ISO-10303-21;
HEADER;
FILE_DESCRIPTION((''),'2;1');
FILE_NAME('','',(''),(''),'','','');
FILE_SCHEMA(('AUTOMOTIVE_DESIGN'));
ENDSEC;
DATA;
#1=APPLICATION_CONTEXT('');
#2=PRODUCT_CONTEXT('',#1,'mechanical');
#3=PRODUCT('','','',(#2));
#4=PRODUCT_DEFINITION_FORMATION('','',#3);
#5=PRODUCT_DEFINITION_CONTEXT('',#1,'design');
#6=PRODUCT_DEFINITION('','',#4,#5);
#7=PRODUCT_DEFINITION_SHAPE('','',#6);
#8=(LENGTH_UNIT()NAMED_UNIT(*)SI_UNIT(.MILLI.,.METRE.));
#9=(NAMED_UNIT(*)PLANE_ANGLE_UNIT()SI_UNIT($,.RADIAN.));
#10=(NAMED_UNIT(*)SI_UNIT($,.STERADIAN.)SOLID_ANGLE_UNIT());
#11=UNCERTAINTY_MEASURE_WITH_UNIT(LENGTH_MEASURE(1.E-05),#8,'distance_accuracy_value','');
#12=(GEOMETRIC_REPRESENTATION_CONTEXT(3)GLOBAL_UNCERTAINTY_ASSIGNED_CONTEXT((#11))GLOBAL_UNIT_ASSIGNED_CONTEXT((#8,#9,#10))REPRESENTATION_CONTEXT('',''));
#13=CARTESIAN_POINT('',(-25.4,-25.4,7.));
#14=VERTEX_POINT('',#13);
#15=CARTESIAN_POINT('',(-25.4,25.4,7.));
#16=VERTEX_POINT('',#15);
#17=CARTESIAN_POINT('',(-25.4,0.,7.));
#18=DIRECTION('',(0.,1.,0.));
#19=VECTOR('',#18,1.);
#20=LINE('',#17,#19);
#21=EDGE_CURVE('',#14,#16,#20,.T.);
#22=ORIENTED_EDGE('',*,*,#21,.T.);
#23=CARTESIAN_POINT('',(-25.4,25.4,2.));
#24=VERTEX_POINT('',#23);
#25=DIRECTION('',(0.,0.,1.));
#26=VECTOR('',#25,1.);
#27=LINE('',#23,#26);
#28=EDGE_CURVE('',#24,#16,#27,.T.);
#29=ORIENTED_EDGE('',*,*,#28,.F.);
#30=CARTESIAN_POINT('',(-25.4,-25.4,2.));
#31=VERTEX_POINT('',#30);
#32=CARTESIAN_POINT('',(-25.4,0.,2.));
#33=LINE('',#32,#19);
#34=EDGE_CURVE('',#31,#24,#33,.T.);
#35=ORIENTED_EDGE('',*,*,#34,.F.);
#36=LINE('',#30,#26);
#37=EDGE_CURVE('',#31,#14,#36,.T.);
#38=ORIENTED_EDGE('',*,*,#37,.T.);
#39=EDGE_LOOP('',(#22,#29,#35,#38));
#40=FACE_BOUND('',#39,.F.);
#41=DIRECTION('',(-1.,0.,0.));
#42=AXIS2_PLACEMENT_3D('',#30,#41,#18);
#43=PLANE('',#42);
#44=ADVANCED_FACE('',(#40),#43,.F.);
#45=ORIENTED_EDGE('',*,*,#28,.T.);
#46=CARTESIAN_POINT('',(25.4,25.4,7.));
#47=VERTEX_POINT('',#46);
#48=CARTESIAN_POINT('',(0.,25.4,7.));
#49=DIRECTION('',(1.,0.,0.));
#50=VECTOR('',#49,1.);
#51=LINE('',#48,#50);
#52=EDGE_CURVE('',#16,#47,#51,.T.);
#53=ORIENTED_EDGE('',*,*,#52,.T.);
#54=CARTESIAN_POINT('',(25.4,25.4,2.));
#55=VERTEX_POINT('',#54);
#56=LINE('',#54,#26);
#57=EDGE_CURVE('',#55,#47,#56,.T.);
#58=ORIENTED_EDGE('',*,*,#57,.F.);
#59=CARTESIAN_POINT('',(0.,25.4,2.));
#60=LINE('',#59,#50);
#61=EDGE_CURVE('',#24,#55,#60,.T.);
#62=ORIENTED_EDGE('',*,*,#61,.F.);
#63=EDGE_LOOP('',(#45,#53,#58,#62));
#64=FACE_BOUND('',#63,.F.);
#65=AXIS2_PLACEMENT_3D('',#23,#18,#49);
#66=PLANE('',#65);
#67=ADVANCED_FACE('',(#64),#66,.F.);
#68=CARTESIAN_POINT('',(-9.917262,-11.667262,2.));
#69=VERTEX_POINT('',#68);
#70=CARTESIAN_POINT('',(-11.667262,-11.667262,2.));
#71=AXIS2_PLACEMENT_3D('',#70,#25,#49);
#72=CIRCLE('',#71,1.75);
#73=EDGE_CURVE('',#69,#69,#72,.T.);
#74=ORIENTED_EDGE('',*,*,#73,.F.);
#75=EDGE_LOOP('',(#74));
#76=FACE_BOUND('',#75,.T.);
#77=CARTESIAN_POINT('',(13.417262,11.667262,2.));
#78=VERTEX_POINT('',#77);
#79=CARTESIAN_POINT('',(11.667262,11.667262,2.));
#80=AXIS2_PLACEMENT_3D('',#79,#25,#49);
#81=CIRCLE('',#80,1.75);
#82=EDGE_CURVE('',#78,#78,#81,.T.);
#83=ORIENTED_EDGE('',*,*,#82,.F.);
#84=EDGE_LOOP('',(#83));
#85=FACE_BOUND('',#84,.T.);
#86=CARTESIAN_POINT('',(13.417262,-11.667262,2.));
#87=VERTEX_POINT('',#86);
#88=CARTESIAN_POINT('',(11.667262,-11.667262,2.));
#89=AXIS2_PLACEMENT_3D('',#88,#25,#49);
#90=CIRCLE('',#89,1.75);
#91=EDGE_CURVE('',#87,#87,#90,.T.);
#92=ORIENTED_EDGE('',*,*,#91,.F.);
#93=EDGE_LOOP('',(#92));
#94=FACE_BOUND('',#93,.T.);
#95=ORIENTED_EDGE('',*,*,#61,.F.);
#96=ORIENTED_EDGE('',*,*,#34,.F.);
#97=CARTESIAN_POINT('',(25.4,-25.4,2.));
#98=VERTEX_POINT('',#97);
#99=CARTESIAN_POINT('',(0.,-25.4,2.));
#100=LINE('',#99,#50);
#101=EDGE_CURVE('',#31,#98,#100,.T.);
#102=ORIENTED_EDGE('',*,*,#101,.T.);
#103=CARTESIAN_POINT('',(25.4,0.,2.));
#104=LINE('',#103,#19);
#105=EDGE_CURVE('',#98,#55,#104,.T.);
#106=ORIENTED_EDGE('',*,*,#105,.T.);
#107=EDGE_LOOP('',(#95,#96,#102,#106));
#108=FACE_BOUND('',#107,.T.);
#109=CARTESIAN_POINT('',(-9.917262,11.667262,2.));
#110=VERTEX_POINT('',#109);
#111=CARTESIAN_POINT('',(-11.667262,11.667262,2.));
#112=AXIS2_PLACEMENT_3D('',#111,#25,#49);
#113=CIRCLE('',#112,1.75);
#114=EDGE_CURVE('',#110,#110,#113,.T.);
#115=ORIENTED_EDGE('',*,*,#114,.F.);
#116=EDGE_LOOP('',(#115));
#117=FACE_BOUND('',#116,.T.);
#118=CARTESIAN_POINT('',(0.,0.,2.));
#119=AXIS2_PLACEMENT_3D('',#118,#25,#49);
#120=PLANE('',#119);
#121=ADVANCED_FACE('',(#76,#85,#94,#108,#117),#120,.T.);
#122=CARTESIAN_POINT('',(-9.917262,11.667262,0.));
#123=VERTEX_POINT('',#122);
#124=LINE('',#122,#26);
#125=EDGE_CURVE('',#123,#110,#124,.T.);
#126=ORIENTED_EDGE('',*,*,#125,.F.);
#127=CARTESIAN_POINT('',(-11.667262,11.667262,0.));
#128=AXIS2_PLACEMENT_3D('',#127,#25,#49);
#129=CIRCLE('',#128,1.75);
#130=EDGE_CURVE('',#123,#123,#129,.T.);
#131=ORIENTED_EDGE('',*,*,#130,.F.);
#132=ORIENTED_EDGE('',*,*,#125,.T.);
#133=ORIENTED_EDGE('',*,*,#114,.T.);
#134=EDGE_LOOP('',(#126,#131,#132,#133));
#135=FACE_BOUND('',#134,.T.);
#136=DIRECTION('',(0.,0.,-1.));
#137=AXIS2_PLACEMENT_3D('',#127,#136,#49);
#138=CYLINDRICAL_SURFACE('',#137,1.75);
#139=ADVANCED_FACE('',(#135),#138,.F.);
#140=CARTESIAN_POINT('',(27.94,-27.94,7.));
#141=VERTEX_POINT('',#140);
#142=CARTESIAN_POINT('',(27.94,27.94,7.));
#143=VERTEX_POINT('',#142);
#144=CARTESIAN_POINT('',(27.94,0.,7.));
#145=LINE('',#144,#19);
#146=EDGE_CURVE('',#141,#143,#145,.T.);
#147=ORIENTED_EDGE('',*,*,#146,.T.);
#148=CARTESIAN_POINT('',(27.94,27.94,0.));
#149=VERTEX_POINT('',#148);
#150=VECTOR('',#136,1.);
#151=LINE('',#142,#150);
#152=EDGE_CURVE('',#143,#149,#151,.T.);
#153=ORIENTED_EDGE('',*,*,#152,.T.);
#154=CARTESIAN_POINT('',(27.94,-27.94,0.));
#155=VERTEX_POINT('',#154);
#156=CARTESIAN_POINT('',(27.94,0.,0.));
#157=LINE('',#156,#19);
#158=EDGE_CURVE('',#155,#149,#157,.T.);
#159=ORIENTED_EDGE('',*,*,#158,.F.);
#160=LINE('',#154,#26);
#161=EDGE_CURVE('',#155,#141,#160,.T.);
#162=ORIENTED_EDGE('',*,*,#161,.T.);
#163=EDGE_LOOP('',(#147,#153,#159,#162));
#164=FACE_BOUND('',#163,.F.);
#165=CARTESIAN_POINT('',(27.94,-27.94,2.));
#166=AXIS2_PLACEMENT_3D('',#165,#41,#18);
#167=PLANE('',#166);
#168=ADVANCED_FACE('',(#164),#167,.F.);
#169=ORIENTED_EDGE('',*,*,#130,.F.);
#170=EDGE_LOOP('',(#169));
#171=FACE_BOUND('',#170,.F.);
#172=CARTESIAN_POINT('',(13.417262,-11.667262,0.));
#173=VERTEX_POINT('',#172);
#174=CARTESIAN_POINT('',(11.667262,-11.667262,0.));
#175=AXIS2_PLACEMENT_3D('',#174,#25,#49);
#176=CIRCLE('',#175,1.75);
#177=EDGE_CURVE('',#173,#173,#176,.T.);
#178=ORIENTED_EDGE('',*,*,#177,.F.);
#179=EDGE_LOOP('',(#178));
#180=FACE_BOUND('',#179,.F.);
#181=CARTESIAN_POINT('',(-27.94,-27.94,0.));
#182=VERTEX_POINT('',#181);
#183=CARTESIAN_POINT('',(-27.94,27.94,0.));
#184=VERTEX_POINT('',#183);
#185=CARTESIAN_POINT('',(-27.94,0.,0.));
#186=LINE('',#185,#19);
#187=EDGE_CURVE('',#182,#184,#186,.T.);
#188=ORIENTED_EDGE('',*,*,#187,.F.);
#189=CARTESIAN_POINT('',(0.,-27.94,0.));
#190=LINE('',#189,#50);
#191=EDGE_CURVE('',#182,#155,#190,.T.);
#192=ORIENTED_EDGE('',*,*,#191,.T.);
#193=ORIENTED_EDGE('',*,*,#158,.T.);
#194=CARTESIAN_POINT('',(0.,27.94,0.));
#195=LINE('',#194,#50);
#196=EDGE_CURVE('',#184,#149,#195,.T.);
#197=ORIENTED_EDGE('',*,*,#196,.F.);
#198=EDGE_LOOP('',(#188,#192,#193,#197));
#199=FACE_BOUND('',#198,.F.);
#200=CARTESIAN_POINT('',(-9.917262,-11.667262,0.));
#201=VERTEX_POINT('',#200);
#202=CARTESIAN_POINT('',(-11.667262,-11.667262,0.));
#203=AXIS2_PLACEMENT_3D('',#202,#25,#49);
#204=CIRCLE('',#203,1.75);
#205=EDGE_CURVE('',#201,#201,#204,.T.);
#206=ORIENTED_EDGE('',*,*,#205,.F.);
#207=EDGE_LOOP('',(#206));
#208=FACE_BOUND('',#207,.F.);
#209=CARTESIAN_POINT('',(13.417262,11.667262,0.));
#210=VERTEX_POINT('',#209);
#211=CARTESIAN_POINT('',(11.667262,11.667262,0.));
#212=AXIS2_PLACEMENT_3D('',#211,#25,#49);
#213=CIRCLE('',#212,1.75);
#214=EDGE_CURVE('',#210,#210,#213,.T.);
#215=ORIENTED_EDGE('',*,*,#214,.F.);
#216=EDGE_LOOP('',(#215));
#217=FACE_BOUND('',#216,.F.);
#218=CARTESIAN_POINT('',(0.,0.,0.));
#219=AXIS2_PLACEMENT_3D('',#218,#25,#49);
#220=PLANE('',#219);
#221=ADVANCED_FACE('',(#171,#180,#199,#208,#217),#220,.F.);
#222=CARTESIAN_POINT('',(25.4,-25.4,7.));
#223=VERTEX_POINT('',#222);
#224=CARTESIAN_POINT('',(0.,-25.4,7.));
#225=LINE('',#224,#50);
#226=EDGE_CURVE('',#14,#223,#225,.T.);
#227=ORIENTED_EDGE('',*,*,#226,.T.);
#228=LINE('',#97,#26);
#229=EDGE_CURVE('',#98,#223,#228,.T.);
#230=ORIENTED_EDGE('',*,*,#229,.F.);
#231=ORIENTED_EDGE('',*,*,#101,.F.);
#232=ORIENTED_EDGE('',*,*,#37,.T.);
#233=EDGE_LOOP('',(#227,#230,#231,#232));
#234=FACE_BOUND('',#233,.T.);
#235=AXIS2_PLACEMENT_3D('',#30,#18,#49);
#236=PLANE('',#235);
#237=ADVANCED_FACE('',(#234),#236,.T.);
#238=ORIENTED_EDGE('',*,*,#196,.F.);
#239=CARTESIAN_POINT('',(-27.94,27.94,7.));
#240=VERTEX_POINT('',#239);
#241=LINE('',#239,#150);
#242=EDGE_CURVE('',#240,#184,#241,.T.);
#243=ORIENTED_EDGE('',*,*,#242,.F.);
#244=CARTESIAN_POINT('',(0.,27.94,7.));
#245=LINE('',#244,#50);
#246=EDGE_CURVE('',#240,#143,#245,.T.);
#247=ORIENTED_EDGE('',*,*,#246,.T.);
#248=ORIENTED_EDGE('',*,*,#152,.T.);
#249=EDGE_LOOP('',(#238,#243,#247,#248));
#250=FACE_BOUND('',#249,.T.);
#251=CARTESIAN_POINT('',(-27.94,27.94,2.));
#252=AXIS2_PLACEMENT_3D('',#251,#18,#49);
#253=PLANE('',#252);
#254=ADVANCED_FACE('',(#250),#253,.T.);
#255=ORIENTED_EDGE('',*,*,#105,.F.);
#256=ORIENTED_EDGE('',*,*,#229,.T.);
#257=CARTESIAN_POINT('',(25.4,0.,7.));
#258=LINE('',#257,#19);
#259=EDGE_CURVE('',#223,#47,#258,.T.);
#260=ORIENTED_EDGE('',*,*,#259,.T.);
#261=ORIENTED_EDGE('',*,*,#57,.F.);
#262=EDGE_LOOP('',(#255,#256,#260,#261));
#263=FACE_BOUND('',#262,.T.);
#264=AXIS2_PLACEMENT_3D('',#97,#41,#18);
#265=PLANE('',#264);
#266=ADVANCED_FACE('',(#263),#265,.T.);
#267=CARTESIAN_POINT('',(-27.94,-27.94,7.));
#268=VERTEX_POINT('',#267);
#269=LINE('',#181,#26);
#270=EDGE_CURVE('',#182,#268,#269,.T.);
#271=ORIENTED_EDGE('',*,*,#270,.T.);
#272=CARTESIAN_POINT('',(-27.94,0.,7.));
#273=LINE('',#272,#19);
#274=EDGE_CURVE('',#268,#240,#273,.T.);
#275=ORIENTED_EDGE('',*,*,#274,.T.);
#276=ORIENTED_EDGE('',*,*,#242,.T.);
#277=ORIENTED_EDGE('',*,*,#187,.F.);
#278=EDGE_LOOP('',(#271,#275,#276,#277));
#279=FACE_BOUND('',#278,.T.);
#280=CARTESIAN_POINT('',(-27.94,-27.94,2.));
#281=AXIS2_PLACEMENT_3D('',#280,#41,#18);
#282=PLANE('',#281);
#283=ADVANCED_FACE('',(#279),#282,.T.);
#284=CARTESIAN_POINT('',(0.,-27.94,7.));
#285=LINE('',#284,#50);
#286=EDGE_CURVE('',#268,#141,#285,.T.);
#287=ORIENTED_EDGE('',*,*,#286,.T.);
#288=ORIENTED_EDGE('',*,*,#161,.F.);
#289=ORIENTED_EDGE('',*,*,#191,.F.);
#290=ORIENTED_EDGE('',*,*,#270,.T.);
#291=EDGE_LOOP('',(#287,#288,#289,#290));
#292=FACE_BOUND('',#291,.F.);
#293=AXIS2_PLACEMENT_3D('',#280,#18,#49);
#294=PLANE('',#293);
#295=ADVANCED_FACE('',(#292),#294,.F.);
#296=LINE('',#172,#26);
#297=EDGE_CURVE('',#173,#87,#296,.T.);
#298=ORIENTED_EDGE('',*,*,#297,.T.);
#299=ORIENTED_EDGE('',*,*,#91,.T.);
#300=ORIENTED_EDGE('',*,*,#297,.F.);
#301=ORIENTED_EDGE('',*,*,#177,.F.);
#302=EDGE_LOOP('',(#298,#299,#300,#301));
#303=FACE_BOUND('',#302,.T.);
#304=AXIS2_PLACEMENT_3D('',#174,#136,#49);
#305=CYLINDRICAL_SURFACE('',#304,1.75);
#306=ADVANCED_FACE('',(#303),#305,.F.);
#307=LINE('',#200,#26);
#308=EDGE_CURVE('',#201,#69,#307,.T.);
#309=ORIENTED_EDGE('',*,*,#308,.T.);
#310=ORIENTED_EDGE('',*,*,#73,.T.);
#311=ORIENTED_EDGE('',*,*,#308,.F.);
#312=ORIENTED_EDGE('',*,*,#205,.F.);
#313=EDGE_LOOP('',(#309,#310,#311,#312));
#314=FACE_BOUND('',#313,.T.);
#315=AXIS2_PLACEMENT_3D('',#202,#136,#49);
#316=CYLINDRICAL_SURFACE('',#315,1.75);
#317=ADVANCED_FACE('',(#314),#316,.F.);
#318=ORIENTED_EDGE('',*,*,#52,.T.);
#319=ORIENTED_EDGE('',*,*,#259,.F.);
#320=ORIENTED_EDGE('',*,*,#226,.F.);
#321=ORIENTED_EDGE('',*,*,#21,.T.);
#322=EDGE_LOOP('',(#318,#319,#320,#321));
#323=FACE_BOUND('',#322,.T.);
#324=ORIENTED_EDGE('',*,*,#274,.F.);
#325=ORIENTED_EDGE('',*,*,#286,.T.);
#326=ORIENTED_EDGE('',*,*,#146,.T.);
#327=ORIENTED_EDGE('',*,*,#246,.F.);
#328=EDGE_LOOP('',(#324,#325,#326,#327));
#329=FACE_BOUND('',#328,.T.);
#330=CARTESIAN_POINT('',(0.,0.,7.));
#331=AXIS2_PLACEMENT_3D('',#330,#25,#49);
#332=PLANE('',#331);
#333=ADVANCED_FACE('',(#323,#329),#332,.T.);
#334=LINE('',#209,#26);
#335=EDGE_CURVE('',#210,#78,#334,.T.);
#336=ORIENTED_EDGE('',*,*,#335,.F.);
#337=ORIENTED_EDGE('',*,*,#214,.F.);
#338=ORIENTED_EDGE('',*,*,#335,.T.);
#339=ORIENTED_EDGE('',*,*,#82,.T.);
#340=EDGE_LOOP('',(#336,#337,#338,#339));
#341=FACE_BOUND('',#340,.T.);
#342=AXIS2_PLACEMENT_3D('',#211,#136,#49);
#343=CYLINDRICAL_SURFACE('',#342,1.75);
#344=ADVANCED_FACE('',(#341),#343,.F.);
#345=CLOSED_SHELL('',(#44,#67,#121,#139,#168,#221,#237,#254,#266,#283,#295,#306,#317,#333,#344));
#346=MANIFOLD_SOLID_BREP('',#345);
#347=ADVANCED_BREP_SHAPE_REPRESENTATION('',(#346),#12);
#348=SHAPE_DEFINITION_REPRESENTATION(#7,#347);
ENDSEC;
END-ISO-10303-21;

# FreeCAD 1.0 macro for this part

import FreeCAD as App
import Part
import Sketcher
Q = App.Units.Quantity

doc = App.newDocument("Part")
body = doc.addObject("PartDesign::Body", "Body")

sketch1 = body.newObject("Sketcher::SketchObject", "Sketch")
sketch1.AttachmentSupport = (doc.getObject("XY_Plane"), [""])
sketch1.MapMode = "FlatFace"
sketch1.addGeometry([
    Part.LineSegment(App.Vector(-27.9, 27.9, 0), App.Vector(-27.9, -27.9, 0)),
    Part.LineSegment(App.Vector(-27.9, -27.9, 0), App.Vector(27.9, -27.9, 0)),
    Part.LineSegment(App.Vector(27.9, -27.9, 0), App.Vector(27.9, 27.9, 0)),
    Part.LineSegment(App.Vector(27.9, 27.9, 0), App.Vector(-27.9, 27.9, 0)),
    Part.Circle(App.Vector(-11.7, -11.7, 0), App.Vector(0, 0, 1), 1.8),
    Part.Circle(App.Vector(11.7, -11.7, 0), App.Vector(0, 0, 1), 1.8),
    Part.Circle(App.Vector(-11.7, 11.7, 0), App.Vector(0, 0, 1), 1.8),
    Part.Circle(App.Vector(11.7, 11.7, 0), App.Vector(0, 0, 1), 1.8),
], False)
sketch1.addConstraint([
    Sketcher.Constraint("Coincident", 0, 2, 1, 1),
    Sketcher.Constraint("Coincident", 1, 2, 2, 1),
    Sketcher.Constraint("Coincident", 2, 2, 3, 1),
    Sketcher.Constraint("Coincident", 3, 2, 0, 1),
    Sketcher.Constraint("Vertical", 0),
    Sketcher.Constraint("Horizontal", 1),
    Sketcher.Constraint("Vertical", 2),
    Sketcher.Constraint("Horizontal", 3),
    Sketcher.Constraint("Equal", 4, 5),
    Sketcher.Constraint("Equal", 5, 6),
    Sketcher.Constraint("Equal", 6, 7),
    Sketcher.Constraint("Symmetric", 5, 3, 6, 3, -1, 1),
    Sketcher.Constraint("Symmetric", 4, 3, 7, 3, -1, 1),
    Sketcher.Constraint("Symmetric", 0, 2, 2, 2, -1, 1),
    Sketcher.Constraint("Symmetric", 4, 3, 5, 3, -2),
    Sketcher.Constraint("Equal", 3, 0),
    Sketcher.Constraint("Diameter", 4, Q("3.5 mm")),
    Sketcher.Constraint("DistanceX", 1, 1, 1, 2, Q("55.88 mm")),
    Sketcher.Constraint("DistanceX", 4, 3, -1, 1, Q("11.667262 mm")),
    Sketcher.Constraint("DistanceY", 4, 3, -1, 1, Q("11.667262 mm")),
])
pad1 = body.newObject("PartDesign::Pad", "Pad")
pad1.Profile = sketch1
pad1.Length = 2

sketch2 = body.newObject("Sketcher::SketchObject", "Sketch001")
sketch2.AttachmentSupport = (doc.getObject("XY_Plane"), [""])
sketch2.MapMode = "FlatFace"
sketch2.AttachmentOffset = App.Placement(App.Vector(0, 0, 2), App.Rotation())
sketch2.addGeometry([
    Part.LineSegment(App.Vector(-28, 28, 0), App.Vector(-28, -28, 0)),
    Part.LineSegment(App.Vector(-28, -28, 0), App.Vector(28, -28, 0)),
    Part.LineSegment(App.Vector(28, -28, 0), App.Vector(28, 28, 0)),
    Part.LineSegment(App.Vector(28, 28, 0), App.Vector(-28, 28, 0)),
    Part.LineSegment(App.Vector(25, -25, 0), App.Vector(-25, -25, 0)),
    Part.LineSegment(App.Vector(-25, -25, 0), App.Vector(-25, 25, 0)),
    Part.LineSegment(App.Vector(-25, 25, 0), App.Vector(25, 25, 0)),
    Part.LineSegment(App.Vector(25, 25, 0), App.Vector(25, -25, 0)),
], False)
sketch2.addConstraint([
    Sketcher.Constraint("Coincident", 0, 2, 1, 1),
    Sketcher.Constraint("Coincident", 1, 2, 2, 1),
    Sketcher.Constraint("Coincident", 2, 2, 3, 1),
    Sketcher.Constraint("Coincident", 3, 2, 0, 1),
    Sketcher.Constraint("Coincident", 4, 2, 5, 1),
    Sketcher.Constraint("Coincident", 5, 2, 6, 1),
    Sketcher.Constraint("Coincident", 6, 2, 7, 1),
    Sketcher.Constraint("Coincident", 7, 2, 4, 1),
    Sketcher.Constraint("Vertical", 0),
    Sketcher.Constraint("Horizontal", 1),
    Sketcher.Constraint("Vertical", 2),
    Sketcher.Constraint("Horizontal", 3),
    Sketcher.Constraint("Horizontal", 4),
    Sketcher.Constraint("Vertical", 5),
    Sketcher.Constraint("Horizontal", 6),
    Sketcher.Constraint("Vertical", 7),
    Sketcher.Constraint("Symmetric", 0, 2, 2, 2, -1, 1),
    Sketcher.Constraint("Symmetric", 4, 2, 6, 2, -1, 1),
    Sketcher.Constraint("Equal", 3, 0),
    Sketcher.Constraint("Equal", 6, 5),
    Sketcher.Constraint("DistanceX", 4, 2, 4, 1, Q("50.8 mm")),
    Sketcher.Constraint("DistanceX", 1, 1, 1, 2, Q("55.88 mm")),
])
pad2 = body.newObject("PartDesign::Pad", "Pad001")
pad2.Profile = sketch2
pad2.Length = 5

doc.recompute()
